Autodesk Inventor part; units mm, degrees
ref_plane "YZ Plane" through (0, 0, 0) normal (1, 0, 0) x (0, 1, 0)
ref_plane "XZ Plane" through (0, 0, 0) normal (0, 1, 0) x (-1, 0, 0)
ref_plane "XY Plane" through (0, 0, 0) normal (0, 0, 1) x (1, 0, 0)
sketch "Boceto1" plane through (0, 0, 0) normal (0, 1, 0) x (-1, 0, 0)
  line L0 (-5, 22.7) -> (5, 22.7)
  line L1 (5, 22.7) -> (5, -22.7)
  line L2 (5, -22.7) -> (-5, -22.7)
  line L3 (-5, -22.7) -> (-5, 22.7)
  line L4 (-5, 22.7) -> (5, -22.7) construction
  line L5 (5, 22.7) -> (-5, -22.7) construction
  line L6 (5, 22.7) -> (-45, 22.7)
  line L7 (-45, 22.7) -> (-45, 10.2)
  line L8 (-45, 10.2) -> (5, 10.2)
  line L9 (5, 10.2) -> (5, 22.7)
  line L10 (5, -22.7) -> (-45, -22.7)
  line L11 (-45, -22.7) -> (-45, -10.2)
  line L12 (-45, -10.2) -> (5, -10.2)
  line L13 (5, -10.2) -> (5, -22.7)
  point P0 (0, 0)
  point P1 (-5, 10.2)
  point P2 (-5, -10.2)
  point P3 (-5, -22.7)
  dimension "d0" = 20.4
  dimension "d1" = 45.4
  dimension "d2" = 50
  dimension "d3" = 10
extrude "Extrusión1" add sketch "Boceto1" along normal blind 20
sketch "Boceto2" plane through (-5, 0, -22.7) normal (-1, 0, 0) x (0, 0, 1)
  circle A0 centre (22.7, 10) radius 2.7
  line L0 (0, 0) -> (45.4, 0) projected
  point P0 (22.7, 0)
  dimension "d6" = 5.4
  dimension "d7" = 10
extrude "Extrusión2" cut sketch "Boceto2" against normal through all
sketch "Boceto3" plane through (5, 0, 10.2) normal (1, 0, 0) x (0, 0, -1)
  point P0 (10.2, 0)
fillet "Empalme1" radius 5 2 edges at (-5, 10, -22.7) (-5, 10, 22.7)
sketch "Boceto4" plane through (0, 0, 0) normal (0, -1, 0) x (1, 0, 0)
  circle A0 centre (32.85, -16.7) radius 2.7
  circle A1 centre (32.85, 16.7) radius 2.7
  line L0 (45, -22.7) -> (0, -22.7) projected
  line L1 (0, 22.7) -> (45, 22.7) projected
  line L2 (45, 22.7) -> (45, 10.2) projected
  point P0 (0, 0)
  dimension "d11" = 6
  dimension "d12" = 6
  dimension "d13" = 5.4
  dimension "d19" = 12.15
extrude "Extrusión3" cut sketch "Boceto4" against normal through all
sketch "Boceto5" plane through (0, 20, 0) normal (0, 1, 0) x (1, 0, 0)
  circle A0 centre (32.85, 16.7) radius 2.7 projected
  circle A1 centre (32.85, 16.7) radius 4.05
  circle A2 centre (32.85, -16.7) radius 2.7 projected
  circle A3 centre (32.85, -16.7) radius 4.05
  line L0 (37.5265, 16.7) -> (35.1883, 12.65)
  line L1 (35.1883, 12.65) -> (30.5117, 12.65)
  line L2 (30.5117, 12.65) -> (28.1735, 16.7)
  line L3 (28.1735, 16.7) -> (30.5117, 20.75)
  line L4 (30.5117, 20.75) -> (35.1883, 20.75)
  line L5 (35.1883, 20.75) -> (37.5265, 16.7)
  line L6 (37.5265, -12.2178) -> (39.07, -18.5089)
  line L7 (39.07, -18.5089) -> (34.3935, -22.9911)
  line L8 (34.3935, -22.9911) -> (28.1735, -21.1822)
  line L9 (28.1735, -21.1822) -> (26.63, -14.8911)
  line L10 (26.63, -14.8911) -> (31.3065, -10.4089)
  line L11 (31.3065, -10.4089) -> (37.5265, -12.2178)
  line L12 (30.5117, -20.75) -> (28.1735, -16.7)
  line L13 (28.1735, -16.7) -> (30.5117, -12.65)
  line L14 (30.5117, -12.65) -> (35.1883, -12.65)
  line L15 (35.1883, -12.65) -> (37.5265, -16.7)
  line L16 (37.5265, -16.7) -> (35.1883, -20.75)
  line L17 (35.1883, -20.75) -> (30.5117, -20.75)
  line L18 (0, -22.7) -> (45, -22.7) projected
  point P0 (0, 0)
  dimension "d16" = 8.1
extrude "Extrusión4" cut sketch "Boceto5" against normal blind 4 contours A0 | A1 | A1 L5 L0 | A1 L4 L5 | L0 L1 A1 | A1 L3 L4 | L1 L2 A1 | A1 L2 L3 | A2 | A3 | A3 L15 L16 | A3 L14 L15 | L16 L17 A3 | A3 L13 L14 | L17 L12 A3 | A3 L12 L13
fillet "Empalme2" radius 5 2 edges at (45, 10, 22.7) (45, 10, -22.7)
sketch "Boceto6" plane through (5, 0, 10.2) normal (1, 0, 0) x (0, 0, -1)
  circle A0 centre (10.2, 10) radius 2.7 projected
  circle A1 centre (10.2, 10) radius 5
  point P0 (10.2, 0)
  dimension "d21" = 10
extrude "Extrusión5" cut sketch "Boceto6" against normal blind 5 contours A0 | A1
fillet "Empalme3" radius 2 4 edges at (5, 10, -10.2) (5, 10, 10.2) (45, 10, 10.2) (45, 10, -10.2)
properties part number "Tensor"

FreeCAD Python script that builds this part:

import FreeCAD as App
import Part
import Sketcher

V = App.Vector
Q = App.Units.Quantity


def edges_at(feature, points):
    """Names of the edges that pass closest to the given points."""
    edges = feature.Shape.Edges
    near = lambda p: min(range(len(edges)), key=lambda i: edges[i].distToShape(Part.Vertex(*p))[0])
    return sorted({f"Edge{near(p) + 1}" for p in points})


def add_polygon(sketch, points):
    """Adds a closed chain of lines whose ends are joined by coincident constraints."""
    first, n = sketch.GeometryCount, len(points)
    for a, b in zip(points, points[1:] + points[:1]):
        sketch.addGeometry(Part.LineSegment(App.Vector(*a, 0), App.Vector(*b, 0)), False)
    for i in range(n):
        sketch.addConstraint(Sketcher.Constraint("Coincident", first + i, 2, first + (i + 1) % n, 1))

doc = App.newDocument("Part")
params = doc.addObject("Spreadsheet::Sheet", "Params")
for row, (alias, value) in enumerate([
    ("sketch1_width", "50 mm"),
    ("sketch1_height", "20.4 mm"),
    ("sketch1_height2", "45.4 mm"),
    ("pad1_length", "20 mm"),
    ("sketch2_diameter", "5.4 mm"),
    ("fillet_radius", "5 mm"),
    ("sketch3_diameter", "5.4 mm"),
    ("pocket3_length", "4 mm"),
    ("fillet2_radius", "5 mm"),
    ("sketch5_diameter", "10 mm"),
    ("pocket4_length", "5 mm"),
    ("fillet3_radius", "2 mm"),
], start=1):
    params.set(f"A{row}", alias)
    params.set(f"B{row}", "=" + value)
    params.setAlias(f"B{row}", alias)

body = doc.addObject("PartDesign::Body", "Body")

sketch1 = body.newObject("Sketcher::SketchObject", "Sketch")
sketch1.AttachmentSupport = (doc.getObject("XZ_Plane"), [""])
sketch1.MapMode = "FlatFace"
add_polygon(sketch1, [(-5, 23), (45, 23), (45, 10), (5, 10), (5, -10), (45, -10), (45, -23), (-5, -23)])
sketch1.addConstraint([
    Sketcher.Constraint("Horizontal", 0),
    Sketcher.Constraint("Vertical", 1),
    Sketcher.Constraint("Horizontal", 2),
    Sketcher.Constraint("Vertical", 3),
    Sketcher.Constraint("Horizontal", 4),
    Sketcher.Constraint("Vertical", 5),
    Sketcher.Constraint("Horizontal", 6),
    Sketcher.Constraint("Vertical", 7),
    Sketcher.Constraint("Symmetric", 1, 2, 4, 2, -1),
    Sketcher.Constraint("Equal", 1, 5),
    Sketcher.Constraint("DistanceX", 0, 1, 0, 2, 50.0),
    Sketcher.Constraint("DistanceY", 3, 2, 3, 1, 20.4),
    Sketcher.Constraint("DistanceY", 7, 1, 7, 2, 45.4),
    Sketcher.Constraint("DistanceX", 6, 2, 3, 2, 10.0),
    Sketcher.Constraint("DistanceX", -1, 1, 0, 2, 45.0),
])
sketch1.setExpression("Constraints[18]", "Params.sketch1_width")
sketch1.setExpression("Constraints[19]", "Params.sketch1_height")
sketch1.setExpression("Constraints[20]", "Params.sketch1_height2")
pad1 = body.newObject("PartDesign::Pad", "Pad")
pad1.Profile = sketch1
pad1.setExpression("Length", "Params.pad1_length")
pad1.Reversed = True

sketch2 = body.newObject("Sketcher::SketchObject", "Sketch001")
sketch2.AttachmentSupport = (doc.getObject("YZ_Plane"), [""])
sketch2.MapMode = "FlatFace"
sketch2.AttachmentOffset = App.Placement(V(0, 0, -5), App.Rotation())
sketch2.addGeometry(Part.Circle(V(10, 0, 0), V(0, 0, 1), 2.7), False)
sketch2.addConstraint([
    Sketcher.Constraint("PointOnObject", 0, 3, -1),
    Sketcher.Constraint("Diameter", 0, 5.4),
    Sketcher.Constraint("DistanceX", -1, 1, 0, 3, 10.0),
])
sketch2.setExpression("Constraints[1]", "Params.sketch2_diameter")
pocket1 = body.newObject("PartDesign::Pocket", "Pocket")
pocket1.Profile = sketch2
pocket1.Type = "ThroughAll"
pocket1.Reversed = True
doc.recompute()

fillet = body.newObject("PartDesign::Fillet", "Fillet")
fillet.Base = (pocket1, edges_at(pocket1, [(-5, 10, -22.7), (-5, 10, 22.7)]))
fillet.setExpression("Radius", "Params.fillet_radius")

sketch3 = body.newObject("Sketcher::SketchObject", "Sketch002")
sketch3.AttachmentSupport = (doc.getObject("XZ_Plane"), [""])
sketch3.MapMode = "FlatFace"
sketch3.addGeometry([
    Part.Circle(V(32.9, -16.7, 0), V(0, 0, 1), 2.7),
    Part.Circle(V(32.9, 16.7, 0), V(0, 0, 1), 2.7),
], False)
sketch3.addConstraint([
    Sketcher.Constraint("Equal", 0, 1),
    Sketcher.Constraint("Symmetric", 0, 3, 1, 3, -1),
    Sketcher.Constraint("Diameter", 0, 5.4),
    Sketcher.Constraint("DistanceY", 0, 3, -1, 1, 16.7),
    Sketcher.Constraint("DistanceX", -1, 1, 0, 3, 32.85),
])
sketch3.setExpression("Constraints[2]", "Params.sketch3_diameter")
pocket2 = body.newObject("PartDesign::Pocket", "Pocket001")
pocket2.Profile = sketch3
pocket2.Type = "ThroughAll"

sketch4 = body.newObject("Sketcher::SketchObject", "Sketch003")
sketch4.AttachmentSupport = (doc.getObject("XZ_Plane"), [""])
sketch4.MapMode = "FlatFace"
sketch4.AttachmentOffset = App.Placement(V(0, 0, -20), App.Rotation())
add_polygon(sketch4, [(37.5, -16.7), (35.2, -20.8), (30.5, -20.8), (28.2, -16.7), (30.5, -12.7), (35.2, -12.7)])
add_polygon(sketch4, [(37.5, 16.7), (35.2, 12.7), (30.5, 12.7), (28.2, 16.7), (30.5, 20.8), (35.2, 20.8)])
sketch4.addConstraint([
    Sketcher.Constraint("Horizontal", 1),
    Sketcher.Constraint("Horizontal", 4),
    Sketcher.Constraint("Horizontal", 7),
    Sketcher.Constraint("Horizontal", 10),
    Sketcher.Constraint("Symmetric", 4, 2, 6, 2, -1),
    Sketcher.Constraint("Symmetric", 2, 2, 8, 2, -1),
    Sketcher.Constraint("Symmetric", 1, 2, 9, 2, -1),
    Sketcher.Constraint("Symmetric", 5, 2, 11, 2, -1),
    Sketcher.Constraint("Parallel", 0, 3),
    Sketcher.Constraint("Parallel", 2, 5),
    Sketcher.Constraint("Parallel", 3, 6),
    Sketcher.Constraint("Parallel", 5, 8),
    Sketcher.Constraint("Parallel", 8, 11),
    Sketcher.Constraint("Horizontal", 2, 2, 5, 2),
    Sketcher.Constraint("Vertical", 1, 2, 3, 2),
    Sketcher.Constraint("DistanceY", 1, 2, 3, 2, 8.1),
    Sketcher.Constraint("Angle", 0, Q("-119.9993 deg")),
    Sketcher.Constraint("DistanceY", 2, 2, -1, 1, 16.7),
    Sketcher.Constraint("DistanceX", 1, 2, 1, 1, 4.6766),
    Sketcher.Constraint("DistanceX", -1, 1, 0, 2, 35.1883),
])
pocket3 = body.newObject("PartDesign::Pocket", "Pocket002")
pocket3.Profile = sketch4
pocket3.setExpression("Length", "Params.pocket3_length")
pocket3.Reversed = True
doc.recompute()

fillet2 = body.newObject("PartDesign::Fillet", "Fillet001")
fillet2.Base = (pocket3, edges_at(pocket3, [(45, 10, 22.7), (45, 10, -22.7)]))
fillet2.setExpression("Radius", "Params.fillet2_radius")

sketch5 = body.newObject("Sketcher::SketchObject", "Sketch004")
sketch5.AttachmentSupport = (doc.getObject("YZ_Plane"), [""])
sketch5.MapMode = "FlatFace"
sketch5.AttachmentOffset = App.Placement(V(0, 0, 5), App.Rotation())
sketch5.addGeometry(Part.Circle(V(10, 0, 0), V(0, 0, 1), 5), False)
sketch5.addConstraint([
    Sketcher.Constraint("PointOnObject", 0, 3, -1),
    Sketcher.Constraint("Diameter", 0, 10.0),
    Sketcher.Constraint("DistanceX", -1, 1, 0, 3, 10.0),
])
sketch5.setExpression("Constraints[1]", "Params.sketch5_diameter")
pocket4 = body.newObject("PartDesign::Pocket", "Pocket003")
pocket4.Profile = sketch5
pocket4.setExpression("Length", "Params.pocket4_length")
doc.recompute()

fillet3 = body.newObject("PartDesign::Fillet", "Fillet002")
fillet3.Base = (pocket4, edges_at(pocket4, [
    (5, 10, -10.2),
    (5, 10, 10.2),
    (45, 10, 10.2),
    (45, 10, -10.2),
]))
fillet3.setExpression("Radius", "Params.fillet3_radius")

doc.recompute()
